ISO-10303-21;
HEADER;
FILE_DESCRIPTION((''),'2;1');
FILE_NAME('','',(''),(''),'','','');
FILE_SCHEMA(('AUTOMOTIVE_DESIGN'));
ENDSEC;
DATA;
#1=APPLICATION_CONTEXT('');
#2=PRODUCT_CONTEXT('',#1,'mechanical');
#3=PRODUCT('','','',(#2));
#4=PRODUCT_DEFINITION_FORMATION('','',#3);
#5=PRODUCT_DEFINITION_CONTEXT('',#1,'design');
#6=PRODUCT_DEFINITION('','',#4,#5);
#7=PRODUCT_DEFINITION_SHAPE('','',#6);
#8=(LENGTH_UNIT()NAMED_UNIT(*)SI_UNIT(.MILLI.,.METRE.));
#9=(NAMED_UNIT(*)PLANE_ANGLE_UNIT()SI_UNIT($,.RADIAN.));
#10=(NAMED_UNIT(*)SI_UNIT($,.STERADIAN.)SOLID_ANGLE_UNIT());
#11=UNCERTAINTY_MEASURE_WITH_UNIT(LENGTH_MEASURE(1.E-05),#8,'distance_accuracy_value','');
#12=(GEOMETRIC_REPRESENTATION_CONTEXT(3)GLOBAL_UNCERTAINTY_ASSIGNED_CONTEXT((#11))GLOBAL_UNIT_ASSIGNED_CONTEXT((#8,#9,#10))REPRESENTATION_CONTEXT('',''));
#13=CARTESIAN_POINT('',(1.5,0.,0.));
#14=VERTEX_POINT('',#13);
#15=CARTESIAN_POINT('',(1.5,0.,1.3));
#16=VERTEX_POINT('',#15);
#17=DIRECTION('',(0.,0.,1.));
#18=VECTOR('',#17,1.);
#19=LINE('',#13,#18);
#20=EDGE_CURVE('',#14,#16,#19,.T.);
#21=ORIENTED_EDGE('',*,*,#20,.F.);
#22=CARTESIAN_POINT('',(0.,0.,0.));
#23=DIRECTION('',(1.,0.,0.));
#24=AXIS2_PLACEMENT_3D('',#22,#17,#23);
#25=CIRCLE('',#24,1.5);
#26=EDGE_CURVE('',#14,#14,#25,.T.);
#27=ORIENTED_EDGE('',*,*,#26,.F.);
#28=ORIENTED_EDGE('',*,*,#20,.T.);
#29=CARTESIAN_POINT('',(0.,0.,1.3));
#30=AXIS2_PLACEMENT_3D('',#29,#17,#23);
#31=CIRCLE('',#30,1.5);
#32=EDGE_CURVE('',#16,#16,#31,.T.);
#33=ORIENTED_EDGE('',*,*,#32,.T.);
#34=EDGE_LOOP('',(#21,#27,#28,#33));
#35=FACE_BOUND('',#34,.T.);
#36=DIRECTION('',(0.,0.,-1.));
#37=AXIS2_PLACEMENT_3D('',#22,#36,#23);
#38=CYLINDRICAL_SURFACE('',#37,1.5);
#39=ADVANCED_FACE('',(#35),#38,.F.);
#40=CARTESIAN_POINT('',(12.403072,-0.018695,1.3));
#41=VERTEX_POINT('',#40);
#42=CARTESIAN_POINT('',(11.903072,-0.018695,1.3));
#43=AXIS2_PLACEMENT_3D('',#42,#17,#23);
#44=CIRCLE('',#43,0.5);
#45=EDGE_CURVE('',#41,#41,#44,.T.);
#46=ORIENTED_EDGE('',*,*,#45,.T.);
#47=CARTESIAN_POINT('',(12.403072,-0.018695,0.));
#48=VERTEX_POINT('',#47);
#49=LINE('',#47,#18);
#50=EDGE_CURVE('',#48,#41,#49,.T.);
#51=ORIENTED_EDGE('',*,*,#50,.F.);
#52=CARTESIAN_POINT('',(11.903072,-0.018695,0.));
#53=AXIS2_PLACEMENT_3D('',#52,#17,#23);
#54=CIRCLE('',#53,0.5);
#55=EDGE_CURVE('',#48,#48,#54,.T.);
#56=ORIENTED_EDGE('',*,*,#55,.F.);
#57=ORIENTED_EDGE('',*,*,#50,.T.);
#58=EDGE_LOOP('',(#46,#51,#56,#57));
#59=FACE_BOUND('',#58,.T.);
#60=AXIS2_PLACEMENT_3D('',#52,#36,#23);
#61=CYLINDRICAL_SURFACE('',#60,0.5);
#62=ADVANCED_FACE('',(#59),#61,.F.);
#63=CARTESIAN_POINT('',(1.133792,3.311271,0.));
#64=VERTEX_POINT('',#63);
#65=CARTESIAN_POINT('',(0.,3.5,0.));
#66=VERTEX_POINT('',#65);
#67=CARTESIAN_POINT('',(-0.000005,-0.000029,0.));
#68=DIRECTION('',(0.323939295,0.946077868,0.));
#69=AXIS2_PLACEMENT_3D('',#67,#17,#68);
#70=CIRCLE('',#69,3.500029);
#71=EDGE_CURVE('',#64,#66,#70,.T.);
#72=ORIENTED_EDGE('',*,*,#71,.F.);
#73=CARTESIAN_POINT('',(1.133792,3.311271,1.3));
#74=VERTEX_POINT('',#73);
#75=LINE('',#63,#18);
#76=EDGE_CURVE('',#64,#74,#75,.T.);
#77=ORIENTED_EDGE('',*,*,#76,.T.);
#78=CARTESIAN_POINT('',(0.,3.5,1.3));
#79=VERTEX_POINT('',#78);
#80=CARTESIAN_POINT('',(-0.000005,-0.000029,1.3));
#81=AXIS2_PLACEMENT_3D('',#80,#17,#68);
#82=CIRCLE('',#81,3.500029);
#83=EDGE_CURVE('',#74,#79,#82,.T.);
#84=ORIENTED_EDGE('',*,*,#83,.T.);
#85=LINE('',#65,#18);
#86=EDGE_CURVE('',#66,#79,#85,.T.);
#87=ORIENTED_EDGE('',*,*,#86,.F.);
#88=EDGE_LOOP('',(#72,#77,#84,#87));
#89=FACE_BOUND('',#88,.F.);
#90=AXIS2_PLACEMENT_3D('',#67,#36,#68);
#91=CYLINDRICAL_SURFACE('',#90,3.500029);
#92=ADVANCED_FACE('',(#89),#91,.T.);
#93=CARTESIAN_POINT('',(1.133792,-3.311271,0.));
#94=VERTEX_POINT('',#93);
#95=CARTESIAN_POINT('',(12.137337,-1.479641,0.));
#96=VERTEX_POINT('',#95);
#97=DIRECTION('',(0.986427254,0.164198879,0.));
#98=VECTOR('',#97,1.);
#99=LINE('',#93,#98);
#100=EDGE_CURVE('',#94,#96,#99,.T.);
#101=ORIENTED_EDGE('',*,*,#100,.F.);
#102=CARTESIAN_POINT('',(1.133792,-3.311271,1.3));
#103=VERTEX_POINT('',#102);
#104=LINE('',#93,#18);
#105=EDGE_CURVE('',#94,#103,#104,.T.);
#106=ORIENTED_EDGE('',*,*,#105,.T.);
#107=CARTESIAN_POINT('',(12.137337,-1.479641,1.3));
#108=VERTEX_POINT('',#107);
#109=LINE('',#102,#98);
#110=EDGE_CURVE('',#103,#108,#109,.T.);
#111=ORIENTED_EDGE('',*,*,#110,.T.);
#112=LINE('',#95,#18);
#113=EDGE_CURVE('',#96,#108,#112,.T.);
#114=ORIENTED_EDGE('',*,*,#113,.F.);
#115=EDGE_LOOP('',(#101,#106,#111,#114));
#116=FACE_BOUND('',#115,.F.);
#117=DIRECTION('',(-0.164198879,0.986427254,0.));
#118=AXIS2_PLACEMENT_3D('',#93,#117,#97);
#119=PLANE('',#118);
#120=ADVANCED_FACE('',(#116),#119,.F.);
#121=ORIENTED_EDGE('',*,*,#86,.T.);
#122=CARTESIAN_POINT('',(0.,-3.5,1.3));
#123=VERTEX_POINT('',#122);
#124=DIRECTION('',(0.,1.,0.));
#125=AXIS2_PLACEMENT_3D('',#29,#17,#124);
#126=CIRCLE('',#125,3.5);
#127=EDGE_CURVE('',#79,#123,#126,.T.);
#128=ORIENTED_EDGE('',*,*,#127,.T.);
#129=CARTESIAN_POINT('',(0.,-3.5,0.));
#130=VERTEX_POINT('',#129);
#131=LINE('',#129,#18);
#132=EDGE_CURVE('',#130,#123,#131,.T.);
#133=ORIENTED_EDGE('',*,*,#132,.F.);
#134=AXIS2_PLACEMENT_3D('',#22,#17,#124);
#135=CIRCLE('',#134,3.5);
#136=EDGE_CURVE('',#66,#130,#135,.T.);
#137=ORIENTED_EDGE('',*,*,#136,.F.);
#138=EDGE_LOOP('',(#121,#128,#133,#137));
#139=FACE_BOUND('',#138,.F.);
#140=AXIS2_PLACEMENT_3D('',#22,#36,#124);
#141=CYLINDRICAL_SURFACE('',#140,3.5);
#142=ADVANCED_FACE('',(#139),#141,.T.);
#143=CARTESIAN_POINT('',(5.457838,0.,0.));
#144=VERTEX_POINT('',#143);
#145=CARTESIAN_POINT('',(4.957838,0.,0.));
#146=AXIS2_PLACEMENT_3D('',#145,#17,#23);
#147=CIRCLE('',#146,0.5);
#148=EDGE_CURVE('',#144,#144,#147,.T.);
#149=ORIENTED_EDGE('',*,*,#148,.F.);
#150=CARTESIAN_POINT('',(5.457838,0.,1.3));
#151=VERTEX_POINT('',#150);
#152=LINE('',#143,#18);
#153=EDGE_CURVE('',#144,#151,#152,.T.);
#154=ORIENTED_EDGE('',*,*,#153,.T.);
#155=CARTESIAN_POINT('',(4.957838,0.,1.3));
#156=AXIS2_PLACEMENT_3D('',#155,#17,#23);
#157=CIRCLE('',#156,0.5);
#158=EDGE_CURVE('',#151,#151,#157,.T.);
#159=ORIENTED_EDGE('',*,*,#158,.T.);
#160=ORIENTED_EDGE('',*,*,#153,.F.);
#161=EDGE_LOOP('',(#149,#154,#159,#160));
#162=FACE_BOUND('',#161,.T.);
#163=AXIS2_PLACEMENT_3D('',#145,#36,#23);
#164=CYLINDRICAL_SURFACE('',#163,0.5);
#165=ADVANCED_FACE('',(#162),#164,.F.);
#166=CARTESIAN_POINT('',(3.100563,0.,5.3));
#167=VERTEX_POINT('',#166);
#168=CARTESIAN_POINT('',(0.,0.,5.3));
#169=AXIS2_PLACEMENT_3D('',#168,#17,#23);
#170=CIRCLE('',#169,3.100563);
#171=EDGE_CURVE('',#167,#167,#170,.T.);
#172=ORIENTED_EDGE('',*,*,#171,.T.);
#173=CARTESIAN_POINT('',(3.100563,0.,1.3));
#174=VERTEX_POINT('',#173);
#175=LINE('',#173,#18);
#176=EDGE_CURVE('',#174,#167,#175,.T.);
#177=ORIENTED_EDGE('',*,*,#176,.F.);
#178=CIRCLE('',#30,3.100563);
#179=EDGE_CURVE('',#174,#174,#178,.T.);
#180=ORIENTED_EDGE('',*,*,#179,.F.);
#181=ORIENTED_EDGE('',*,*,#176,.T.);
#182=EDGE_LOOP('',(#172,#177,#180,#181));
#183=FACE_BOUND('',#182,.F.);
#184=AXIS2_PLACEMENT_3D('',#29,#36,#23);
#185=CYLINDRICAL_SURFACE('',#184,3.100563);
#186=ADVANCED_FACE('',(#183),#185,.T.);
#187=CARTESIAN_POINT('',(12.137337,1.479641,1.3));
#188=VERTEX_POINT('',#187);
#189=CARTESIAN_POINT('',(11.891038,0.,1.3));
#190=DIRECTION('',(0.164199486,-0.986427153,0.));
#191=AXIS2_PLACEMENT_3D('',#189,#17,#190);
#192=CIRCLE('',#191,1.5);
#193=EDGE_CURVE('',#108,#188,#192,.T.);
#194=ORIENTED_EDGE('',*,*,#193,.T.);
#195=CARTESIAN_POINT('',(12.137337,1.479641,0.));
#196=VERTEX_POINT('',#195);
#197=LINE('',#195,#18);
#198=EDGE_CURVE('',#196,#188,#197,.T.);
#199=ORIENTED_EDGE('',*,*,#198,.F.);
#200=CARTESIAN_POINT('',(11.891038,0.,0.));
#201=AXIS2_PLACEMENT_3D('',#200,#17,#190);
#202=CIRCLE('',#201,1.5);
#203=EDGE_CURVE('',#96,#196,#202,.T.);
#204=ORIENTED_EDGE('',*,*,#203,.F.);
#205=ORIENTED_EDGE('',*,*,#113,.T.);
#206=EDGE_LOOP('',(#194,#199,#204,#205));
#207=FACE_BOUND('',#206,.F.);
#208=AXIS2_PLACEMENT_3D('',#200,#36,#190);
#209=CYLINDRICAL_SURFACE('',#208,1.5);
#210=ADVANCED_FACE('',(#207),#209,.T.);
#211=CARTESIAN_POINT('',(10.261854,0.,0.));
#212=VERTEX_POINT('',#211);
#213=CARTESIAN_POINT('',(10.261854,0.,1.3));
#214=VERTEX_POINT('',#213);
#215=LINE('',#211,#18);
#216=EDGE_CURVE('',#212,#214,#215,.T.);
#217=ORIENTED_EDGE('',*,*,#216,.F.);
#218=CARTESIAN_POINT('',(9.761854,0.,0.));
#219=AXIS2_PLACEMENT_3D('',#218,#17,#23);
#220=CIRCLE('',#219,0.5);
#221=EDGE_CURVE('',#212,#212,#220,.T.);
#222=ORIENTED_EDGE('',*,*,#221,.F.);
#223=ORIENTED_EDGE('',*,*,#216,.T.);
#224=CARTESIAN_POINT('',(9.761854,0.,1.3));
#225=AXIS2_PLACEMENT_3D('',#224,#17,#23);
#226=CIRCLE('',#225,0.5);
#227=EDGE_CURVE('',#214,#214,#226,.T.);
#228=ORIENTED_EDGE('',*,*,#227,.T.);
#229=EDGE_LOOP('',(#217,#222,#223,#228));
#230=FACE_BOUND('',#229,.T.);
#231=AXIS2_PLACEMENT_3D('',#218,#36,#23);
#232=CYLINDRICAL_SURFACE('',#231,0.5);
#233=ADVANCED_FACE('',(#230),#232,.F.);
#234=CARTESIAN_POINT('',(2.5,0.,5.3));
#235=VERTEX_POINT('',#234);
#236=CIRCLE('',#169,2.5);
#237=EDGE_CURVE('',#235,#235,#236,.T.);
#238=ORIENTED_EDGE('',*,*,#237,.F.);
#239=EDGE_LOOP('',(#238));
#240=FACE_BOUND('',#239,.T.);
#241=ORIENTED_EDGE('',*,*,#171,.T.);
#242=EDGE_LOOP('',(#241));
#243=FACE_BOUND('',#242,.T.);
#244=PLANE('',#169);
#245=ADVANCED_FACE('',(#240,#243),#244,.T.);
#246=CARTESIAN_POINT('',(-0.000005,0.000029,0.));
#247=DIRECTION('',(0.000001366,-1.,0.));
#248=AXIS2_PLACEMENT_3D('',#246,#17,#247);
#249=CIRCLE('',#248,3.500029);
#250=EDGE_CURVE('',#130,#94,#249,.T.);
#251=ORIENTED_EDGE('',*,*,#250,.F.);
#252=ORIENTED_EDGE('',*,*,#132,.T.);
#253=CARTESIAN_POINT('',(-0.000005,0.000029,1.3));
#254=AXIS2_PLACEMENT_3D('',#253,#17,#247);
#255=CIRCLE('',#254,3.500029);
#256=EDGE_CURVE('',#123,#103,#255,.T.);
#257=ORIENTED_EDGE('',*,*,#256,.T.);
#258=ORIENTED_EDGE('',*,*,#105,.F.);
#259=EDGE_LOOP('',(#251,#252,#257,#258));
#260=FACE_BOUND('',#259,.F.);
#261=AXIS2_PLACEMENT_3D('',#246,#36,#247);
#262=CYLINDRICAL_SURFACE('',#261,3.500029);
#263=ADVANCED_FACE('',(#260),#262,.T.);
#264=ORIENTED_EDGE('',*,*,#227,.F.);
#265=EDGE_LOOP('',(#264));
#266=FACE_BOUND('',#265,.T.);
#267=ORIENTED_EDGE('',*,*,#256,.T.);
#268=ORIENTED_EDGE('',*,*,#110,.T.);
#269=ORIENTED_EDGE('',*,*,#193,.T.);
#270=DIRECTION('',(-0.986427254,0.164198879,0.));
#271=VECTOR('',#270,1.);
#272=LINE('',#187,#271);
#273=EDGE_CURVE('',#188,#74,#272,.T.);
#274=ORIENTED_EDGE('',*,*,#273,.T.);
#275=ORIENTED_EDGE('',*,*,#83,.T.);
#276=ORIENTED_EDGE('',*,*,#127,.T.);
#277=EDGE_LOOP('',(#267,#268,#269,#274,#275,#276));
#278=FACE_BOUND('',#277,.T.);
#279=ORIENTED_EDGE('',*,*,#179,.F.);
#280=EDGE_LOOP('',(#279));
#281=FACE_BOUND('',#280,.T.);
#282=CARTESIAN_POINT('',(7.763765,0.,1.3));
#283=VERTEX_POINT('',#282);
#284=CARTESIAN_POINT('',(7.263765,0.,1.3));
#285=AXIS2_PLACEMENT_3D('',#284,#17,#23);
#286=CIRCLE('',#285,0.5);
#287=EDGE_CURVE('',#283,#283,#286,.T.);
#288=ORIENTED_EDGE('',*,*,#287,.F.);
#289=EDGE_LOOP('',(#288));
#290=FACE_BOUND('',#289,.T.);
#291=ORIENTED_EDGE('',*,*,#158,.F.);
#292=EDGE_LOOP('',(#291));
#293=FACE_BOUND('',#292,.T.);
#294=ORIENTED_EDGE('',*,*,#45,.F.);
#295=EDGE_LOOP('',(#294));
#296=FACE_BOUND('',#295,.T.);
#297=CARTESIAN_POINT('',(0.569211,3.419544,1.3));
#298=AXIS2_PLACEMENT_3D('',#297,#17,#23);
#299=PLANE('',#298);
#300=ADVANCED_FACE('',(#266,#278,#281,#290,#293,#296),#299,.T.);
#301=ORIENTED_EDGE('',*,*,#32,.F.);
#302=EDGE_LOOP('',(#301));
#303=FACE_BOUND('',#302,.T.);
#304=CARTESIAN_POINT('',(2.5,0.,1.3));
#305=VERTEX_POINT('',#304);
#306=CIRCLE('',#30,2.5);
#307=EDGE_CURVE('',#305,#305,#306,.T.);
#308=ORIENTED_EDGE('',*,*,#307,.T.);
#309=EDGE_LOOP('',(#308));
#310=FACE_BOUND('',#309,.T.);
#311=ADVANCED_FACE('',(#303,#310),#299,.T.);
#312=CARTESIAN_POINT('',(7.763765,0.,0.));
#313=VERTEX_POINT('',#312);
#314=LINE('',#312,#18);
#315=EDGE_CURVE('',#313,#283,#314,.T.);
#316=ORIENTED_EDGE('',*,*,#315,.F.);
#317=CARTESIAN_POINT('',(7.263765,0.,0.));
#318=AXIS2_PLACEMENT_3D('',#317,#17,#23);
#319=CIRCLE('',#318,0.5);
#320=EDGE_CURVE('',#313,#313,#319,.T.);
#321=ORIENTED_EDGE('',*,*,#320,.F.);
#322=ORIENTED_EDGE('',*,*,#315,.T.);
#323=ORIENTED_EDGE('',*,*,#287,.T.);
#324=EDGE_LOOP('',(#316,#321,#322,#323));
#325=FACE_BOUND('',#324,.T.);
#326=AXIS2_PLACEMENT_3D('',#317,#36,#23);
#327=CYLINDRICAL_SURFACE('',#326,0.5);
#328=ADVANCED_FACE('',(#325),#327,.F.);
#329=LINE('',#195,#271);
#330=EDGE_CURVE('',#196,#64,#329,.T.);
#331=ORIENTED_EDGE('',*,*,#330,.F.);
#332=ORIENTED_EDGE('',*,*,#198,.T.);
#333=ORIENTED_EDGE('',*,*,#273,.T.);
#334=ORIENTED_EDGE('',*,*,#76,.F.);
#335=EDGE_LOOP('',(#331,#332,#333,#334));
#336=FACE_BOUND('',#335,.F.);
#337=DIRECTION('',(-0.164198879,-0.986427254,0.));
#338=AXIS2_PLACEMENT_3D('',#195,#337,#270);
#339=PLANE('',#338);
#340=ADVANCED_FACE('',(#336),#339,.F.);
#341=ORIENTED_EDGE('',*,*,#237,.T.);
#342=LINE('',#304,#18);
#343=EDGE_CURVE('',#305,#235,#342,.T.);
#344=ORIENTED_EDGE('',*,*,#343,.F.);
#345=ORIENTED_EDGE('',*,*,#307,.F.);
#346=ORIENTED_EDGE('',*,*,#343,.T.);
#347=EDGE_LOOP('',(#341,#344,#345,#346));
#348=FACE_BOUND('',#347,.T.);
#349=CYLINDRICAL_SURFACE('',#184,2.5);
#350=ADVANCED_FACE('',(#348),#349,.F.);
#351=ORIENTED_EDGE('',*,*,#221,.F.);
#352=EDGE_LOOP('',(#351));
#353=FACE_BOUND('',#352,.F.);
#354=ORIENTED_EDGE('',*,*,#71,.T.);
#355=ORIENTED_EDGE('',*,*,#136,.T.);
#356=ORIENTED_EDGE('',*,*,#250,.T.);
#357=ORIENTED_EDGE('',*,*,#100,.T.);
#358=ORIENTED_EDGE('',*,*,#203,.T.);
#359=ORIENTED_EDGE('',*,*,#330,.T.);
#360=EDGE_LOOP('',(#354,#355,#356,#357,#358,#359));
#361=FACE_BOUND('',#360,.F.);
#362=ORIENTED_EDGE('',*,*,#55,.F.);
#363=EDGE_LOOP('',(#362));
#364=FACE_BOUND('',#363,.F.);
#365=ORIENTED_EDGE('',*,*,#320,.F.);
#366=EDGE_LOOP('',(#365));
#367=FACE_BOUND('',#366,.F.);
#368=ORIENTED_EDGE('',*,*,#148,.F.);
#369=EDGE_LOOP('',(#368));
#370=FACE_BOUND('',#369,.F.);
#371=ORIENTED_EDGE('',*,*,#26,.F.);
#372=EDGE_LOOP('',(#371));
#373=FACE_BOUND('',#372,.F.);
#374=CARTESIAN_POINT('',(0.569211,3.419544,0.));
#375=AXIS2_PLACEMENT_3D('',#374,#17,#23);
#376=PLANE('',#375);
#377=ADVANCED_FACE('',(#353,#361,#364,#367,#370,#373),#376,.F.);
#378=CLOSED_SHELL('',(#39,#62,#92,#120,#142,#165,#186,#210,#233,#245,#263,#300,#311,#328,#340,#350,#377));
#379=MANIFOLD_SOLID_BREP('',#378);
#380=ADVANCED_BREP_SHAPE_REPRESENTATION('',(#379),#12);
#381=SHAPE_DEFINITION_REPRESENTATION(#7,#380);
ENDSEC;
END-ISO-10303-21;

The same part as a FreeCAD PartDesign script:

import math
import FreeCAD as App
import Part
import Sketcher
from FreeCAD import Vector

doc = App.newDocument("Part")
params = doc.addObject("Spreadsheet::Sheet", "Params")
for row, (alias, value) in enumerate([
    ("sketch1_diameter", "3 mm"),
    ("sketch1_diameter2", "1 mm"),
    ("sketch1_diameter3", "1 mm"),
    ("sketch1_diameter4", "1 mm"),
    ("sketch1_diameter5", "1 mm"),
    ("pad1_length", "1.3 mm"),
    ("sketch2_diameter", "5 mm"),
    ("pad2_length", "4 mm"),
], start=1):
    params.set(f"A{row}", alias)
    params.set(f"B{row}", "=" + value)
    params.setAlias(f"B{row}", alias)

body = doc.addObject("PartDesign::Body", "Body")

# Sketch on XY plane
sketch1 = body.newObject("Sketcher::SketchObject", "Sketch")
sketch1.AttachmentSupport = (doc.getObject("XY_Plane"), [""])
sketch1.MapMode = "FlatFace"
sketch1.addGeometry(Part.ArcOfCircle(Part.Circle(Vector(-0.000005, -0.000029, 0), Vector(0, 0, 1), 3.500029), math.radians(71.098675), math.radians(89.999922)), False)
sketch1.addGeometry(Part.ArcOfCircle(Part.Circle(Vector(0, 0, 0), Vector(0, 0, 1), 3.5), math.radians(90), math.radians(270)), False)
sketch1.addGeometry(Part.ArcOfCircle(Part.Circle(Vector(-0.000005, 0.000029, 0), Vector(0, 0, 1), 3.500029), math.radians(-89.999922), math.radians(-71.098675)), False)
sketch1.addGeometry(Part.LineSegment(Vector(1.133792, -3.311271, 0), Vector(12.137337, -1.479641, 0)), False)
sketch1.addGeometry(Part.ArcOfCircle(Part.Circle(Vector(11.891038, 0, 0), Vector(0, 0, 1), 1.5), math.radians(-80.549266), math.radians(80.549266)), False)
sketch1.addGeometry(Part.LineSegment(Vector(12.137337, 1.479641, 0), Vector(1.133792, 3.311271, 0)), False)
sketch1.addGeometry(Part.Circle(Vector(0, 0, 0), Vector(0, 0, 1), 1.5), False)
sketch1.addGeometry(Part.Circle(Vector(11.903072, -0.018695, 0), Vector(0, 0, 1), 0.5), False)
sketch1.addGeometry(Part.Circle(Vector(4.957838, 0, 0), Vector(0, 0, 1), 0.5), False)
sketch1.addGeometry(Part.Circle(Vector(7.263765, 0, 0), Vector(0, 0, 1), 0.5), False)
sketch1.addGeometry(Part.Circle(Vector(9.761854, 0, 0), Vector(0, 0, 1), 0.5), False)
sketch1.addConstraint(Sketcher.Constraint("Coincident", 0, 2, 1, 1))
sketch1.addConstraint(Sketcher.Constraint("Coincident", 1, 2, 2, 1))
sketch1.addConstraint(Sketcher.Constraint("Coincident", 2, 2, 3, 1))
sketch1.addConstraint(Sketcher.Constraint("Coincident", 3, 2, 4, 1))
sketch1.addConstraint(Sketcher.Constraint("Coincident", 4, 2, 5, 1))
sketch1.addConstraint(Sketcher.Constraint("Coincident", 5, 2, 0, 1))
sketch1.addConstraint(Sketcher.Constraint("Coincident", 1, 3, -1, 1))
sketch1.addConstraint(Sketcher.Constraint("Coincident", 6, 3, -1, 1))
sketch1.addConstraint(Sketcher.Constraint("PointOnObject", 4, 3, -1))
sketch1.addConstraint(Sketcher.Constraint("PointOnObject", 8, 3, -1))
sketch1.addConstraint(Sketcher.Constraint("PointOnObject", 9, 3, -1))
sketch1.addConstraint(Sketcher.Constraint("PointOnObject", 10, 3, -1))
sketch1.addConstraint(Sketcher.Constraint("PointOnObject", 0, 2, -2))
sketch1.addConstraint(Sketcher.Constraint("PointOnObject", 1, 2, -2))
sketch1.addConstraint(Sketcher.Constraint("Diameter", 6, 3.0))
sketch1.addConstraint(Sketcher.Constraint("Diameter", 7, 1.0))
sketch1.addConstraint(Sketcher.Constraint("Diameter", 8, 1.0))
sketch1.addConstraint(Sketcher.Constraint("Diameter", 9, 1.0))
sketch1.addConstraint(Sketcher.Constraint("Diameter", 10, 1.0))
sketch1.addConstraint(Sketcher.Constraint("Radius", 1, 3.5))
sketch1.addConstraint(Sketcher.Constraint("Radius", 4, 1.5))
sketch1.addConstraint(Sketcher.Constraint("Radius", 0, 3.500029))
sketch1.addConstraint(Sketcher.Constraint("Radius", 2, 3.500029))
sketch1.addConstraint(Sketcher.Constraint("DistanceX", 8, 3, 4, 3, 6.9332))
sketch1.addConstraint(Sketcher.Constraint("DistanceY", 2, 2, 2, 3, 3.3113))
sketch1.addConstraint(Sketcher.Constraint("DistanceX", 4, 3, 3, 2, 0.246299))
sketch1.addConstraint(Sketcher.Constraint("DistanceX", 4, 3, 4, 2, 0.246299))
sketch1.addConstraint(Sketcher.Constraint("DistanceY", 0, 3, 5, 2, 3.3113))
sketch1.addConstraint(Sketcher.Constraint("Distance", 3, 11.154948))
sketch1.addConstraint(Sketcher.Constraint("Distance", 5, 11.154948))
sketch1.addConstraint(Sketcher.Constraint("DistanceX", -1, 1, 2, 2, 1.133792))
sketch1.addConstraint(Sketcher.Constraint("DistanceX", 10, 3, 7, 3, 2.141218))
sketch1.addConstraint(Sketcher.Constraint("DistanceX", 9, 3, 10, 3, 2.498089))
sketch1.addConstraint(Sketcher.Constraint("DistanceX", -1, 1, 7, 3, 11.903072))
sketch1.addConstraint(Sketcher.Constraint("DistanceY", 7, 3, -1, 1, 0.018695))
sketch1.setExpression("Constraints[14]", "Params.sketch1_diameter")
sketch1.setExpression("Constraints[15]", "Params.sketch1_diameter2")
sketch1.setExpression("Constraints[16]", "Params.sketch1_diameter3")
sketch1.setExpression("Constraints[17]", "Params.sketch1_diameter4")
sketch1.setExpression("Constraints[18]", "Params.sketch1_diameter5")
pad1 = body.newObject("PartDesign::Pad", "Pad")
pad1.Profile = sketch1
pad1.setExpression("Length", "Params.pad1_length")

# Sketch on XY plane
sketch2 = body.newObject("Sketcher::SketchObject", "Sketch001")
sketch2.AttachmentSupport = (doc.getObject("XY_Plane"), [""])
sketch2.MapMode = "FlatFace"
sketch2.AttachmentOffset = App.Placement(Vector(0, 0, 1.3), App.Rotation())
sketch2.addGeometry(Part.Circle(Vector(0, 0, 0), Vector(0, 0, 1), 3.1), False)
sketch2.addGeometry(Part.Circle(Vector(0, 0, 0), Vector(0, 0, 1), 2.5), False)
sketch2.addConstraint(Sketcher.Constraint("Coincident", 0, 3, -1, 1))
sketch2.addConstraint(Sketcher.Constraint("Coincident", 1, 3, -1, 1))
sketch2.addConstraint(Sketcher.Constraint("Diameter", 1, 5.0))
sketch2.addConstraint(Sketcher.Constraint("Diameter", 0, 6.201126))
sketch2.setExpression("Constraints[2]", "Params.sketch2_diameter")
pad2 = body.newObject("PartDesign::Pad", "Pad001")
pad2.Profile = sketch2
pad2.setExpression("Length", "Params.pad2_length")

doc.recompute()
